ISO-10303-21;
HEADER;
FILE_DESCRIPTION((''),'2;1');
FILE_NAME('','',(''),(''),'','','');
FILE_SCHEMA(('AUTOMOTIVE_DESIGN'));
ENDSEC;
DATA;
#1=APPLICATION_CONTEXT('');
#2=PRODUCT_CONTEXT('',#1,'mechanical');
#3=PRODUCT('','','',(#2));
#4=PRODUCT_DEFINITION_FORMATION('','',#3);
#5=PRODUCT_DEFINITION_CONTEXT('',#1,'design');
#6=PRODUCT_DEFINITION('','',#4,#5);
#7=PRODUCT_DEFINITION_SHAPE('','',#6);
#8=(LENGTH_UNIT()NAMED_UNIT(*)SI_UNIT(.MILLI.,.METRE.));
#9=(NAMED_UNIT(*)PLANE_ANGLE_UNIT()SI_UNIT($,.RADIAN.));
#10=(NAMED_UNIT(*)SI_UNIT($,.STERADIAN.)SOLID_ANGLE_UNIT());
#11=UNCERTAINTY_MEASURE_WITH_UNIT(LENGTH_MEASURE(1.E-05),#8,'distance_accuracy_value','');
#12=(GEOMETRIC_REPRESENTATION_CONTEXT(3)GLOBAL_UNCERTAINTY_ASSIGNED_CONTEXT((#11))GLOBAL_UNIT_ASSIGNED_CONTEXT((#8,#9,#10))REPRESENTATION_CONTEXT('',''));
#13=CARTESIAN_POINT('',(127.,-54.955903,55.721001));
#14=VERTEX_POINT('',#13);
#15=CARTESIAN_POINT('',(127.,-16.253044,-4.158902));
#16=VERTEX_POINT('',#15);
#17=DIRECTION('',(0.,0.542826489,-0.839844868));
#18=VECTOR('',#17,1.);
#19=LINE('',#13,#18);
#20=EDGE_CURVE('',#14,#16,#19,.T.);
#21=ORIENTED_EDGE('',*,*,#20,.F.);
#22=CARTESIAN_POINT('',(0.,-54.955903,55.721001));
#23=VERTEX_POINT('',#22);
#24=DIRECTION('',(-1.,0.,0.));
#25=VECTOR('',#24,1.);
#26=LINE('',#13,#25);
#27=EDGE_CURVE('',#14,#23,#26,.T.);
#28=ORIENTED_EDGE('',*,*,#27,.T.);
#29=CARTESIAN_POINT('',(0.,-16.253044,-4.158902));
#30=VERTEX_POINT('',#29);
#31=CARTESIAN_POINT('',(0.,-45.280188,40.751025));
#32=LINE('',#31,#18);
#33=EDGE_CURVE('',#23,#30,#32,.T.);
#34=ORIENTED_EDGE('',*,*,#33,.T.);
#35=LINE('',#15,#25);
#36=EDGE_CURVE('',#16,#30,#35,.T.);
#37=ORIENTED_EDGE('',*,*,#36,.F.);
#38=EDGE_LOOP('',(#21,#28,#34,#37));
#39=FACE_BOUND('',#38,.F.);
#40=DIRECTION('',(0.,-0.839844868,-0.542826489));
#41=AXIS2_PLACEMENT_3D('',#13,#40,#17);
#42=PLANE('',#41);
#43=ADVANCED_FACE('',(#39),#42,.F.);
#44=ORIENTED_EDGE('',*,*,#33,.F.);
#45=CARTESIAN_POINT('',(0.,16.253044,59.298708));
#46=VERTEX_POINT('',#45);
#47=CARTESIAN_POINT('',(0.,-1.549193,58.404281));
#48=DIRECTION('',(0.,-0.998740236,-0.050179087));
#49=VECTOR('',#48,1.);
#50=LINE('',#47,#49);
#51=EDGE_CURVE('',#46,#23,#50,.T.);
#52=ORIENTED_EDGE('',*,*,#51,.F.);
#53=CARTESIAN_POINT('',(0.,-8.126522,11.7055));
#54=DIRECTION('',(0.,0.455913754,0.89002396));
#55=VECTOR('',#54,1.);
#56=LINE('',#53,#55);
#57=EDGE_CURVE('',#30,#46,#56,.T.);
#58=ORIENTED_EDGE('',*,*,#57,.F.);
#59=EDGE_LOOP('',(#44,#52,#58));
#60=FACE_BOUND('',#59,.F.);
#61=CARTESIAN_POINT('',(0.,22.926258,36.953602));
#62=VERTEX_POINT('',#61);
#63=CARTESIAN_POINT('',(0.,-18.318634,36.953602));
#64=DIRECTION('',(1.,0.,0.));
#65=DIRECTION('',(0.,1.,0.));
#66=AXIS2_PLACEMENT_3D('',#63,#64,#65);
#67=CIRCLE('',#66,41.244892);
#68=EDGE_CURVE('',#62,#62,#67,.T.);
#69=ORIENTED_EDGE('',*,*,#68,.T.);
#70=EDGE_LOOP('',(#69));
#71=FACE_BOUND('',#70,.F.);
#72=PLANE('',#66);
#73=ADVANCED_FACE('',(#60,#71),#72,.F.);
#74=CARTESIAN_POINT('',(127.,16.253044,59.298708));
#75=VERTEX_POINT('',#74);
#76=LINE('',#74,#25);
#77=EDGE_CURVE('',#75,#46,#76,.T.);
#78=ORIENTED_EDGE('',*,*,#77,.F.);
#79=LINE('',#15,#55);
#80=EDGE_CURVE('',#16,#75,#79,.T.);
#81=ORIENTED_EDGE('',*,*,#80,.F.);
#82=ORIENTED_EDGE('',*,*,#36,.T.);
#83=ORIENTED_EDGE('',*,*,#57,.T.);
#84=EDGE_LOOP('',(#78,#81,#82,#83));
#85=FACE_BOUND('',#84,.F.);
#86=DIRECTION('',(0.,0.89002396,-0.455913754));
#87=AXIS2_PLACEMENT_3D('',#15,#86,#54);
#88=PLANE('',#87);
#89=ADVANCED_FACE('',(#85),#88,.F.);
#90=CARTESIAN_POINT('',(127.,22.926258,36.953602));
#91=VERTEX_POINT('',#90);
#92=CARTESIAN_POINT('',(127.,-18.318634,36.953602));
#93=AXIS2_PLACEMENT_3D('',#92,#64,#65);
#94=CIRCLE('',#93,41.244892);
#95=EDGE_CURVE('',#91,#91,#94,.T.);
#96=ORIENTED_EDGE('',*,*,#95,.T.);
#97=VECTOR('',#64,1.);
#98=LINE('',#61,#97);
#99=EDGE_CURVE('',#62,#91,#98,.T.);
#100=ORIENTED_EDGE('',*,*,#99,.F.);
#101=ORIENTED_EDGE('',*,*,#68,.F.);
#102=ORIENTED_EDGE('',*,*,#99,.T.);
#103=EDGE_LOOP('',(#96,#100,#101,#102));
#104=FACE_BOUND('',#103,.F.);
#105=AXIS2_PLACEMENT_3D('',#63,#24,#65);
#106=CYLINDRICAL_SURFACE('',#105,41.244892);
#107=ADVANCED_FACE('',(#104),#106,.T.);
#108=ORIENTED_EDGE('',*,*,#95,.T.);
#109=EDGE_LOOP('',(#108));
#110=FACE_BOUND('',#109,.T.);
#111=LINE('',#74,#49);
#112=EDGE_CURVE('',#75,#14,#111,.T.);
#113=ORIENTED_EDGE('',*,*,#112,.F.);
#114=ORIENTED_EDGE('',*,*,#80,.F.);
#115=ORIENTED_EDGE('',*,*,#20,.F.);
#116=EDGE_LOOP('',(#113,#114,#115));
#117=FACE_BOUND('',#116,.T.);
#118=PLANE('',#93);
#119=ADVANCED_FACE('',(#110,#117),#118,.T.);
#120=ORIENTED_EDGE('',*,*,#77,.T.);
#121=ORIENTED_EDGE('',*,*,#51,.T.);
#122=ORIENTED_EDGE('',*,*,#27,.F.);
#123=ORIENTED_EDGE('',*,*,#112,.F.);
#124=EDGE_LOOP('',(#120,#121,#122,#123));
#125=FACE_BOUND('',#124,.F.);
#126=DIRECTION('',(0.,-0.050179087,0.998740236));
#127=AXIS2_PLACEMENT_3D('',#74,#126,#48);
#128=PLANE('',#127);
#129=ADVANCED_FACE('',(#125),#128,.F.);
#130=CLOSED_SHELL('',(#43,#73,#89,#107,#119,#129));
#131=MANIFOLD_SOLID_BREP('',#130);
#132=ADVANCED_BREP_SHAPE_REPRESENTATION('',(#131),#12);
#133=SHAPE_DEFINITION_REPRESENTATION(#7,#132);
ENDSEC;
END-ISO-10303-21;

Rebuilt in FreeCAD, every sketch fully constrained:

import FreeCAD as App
import Part
import Sketcher
Q = App.Units.Quantity


def add_polygon(sketch, points):
    """Adds a closed chain of lines whose ends are joined by coincident constraints."""
    first, n = sketch.GeometryCount, len(points)
    for a, b in zip(points, points[1:] + points[:1]):
        sketch.addGeometry(Part.LineSegment(App.Vector(*a, 0), App.Vector(*b, 0)), False)
    for i in range(n):
        sketch.addConstraint(Sketcher.Constraint("Coincident", first + i, 2, first + (i + 1) % n, 1))

doc = App.newDocument("Part")
body = doc.addObject("PartDesign::Body", "Body")

sketch1 = body.newObject("Sketcher::SketchObject", "Sketch")
sketch1.AttachmentSupport = (doc.getObject("YZ_Plane"), [""])
sketch1.MapMode = "FlatFace"
sketch1.addGeometry(Part.Circle(App.Vector(-18, 37, 0), App.Vector(0, 0, 1), 41), False)
sketch1.addConstraint(Sketcher.Constraint("Diameter", 0, 82.489784))
sketch1.addConstraint(Sketcher.Constraint("DistanceY", -1, 1, 0, 3, 36.953602))
sketch1.addConstraint(Sketcher.Constraint("DistanceX", 0, 3, -1, 1, 18.318634))
pad1 = body.newObject("PartDesign::Pad", "Pad")
pad1.Profile = sketch1
pad1.Length = Q("5 in")

sketch2 = body.newObject("Sketcher::SketchObject", "Sketch001")
sketch2.AttachmentSupport = (doc.getObject("YZ_Plane"), [""])
sketch2.MapMode = "FlatFace"
sketch2.AttachmentOffset = App.Placement(App.Vector(0, 0, 5 * 25.4), App.Rotation())
add_polygon(sketch2, [(-16, -4), (16, 59), (-55, 56)])
sketch2.addConstraint(Sketcher.Constraint("Equal", 0, 1))
sketch2.addConstraint(Sketcher.Constraint("Equal", 1, 2))
sketch2.addConstraint(Sketcher.Constraint("DistanceY", -1, 1, 1, 2, 55.721001))
sketch2.addConstraint(Sketcher.Constraint("DistanceY", 2, 2, 0, 2, 63.45761))
sketch2.addConstraint(Sketcher.Constraint("DistanceX", 1, 2, 2, 2, 38.702859))
sketch2.addConstraint(Sketcher.Constraint("DistanceX", -1, 1, 0, 2, 16.253044))
pocket1 = body.newObject("PartDesign::Pocket", "Pocket")
pocket1.Profile = sketch2
pocket1.Length = Q("7.62 in")

doc.recompute()
